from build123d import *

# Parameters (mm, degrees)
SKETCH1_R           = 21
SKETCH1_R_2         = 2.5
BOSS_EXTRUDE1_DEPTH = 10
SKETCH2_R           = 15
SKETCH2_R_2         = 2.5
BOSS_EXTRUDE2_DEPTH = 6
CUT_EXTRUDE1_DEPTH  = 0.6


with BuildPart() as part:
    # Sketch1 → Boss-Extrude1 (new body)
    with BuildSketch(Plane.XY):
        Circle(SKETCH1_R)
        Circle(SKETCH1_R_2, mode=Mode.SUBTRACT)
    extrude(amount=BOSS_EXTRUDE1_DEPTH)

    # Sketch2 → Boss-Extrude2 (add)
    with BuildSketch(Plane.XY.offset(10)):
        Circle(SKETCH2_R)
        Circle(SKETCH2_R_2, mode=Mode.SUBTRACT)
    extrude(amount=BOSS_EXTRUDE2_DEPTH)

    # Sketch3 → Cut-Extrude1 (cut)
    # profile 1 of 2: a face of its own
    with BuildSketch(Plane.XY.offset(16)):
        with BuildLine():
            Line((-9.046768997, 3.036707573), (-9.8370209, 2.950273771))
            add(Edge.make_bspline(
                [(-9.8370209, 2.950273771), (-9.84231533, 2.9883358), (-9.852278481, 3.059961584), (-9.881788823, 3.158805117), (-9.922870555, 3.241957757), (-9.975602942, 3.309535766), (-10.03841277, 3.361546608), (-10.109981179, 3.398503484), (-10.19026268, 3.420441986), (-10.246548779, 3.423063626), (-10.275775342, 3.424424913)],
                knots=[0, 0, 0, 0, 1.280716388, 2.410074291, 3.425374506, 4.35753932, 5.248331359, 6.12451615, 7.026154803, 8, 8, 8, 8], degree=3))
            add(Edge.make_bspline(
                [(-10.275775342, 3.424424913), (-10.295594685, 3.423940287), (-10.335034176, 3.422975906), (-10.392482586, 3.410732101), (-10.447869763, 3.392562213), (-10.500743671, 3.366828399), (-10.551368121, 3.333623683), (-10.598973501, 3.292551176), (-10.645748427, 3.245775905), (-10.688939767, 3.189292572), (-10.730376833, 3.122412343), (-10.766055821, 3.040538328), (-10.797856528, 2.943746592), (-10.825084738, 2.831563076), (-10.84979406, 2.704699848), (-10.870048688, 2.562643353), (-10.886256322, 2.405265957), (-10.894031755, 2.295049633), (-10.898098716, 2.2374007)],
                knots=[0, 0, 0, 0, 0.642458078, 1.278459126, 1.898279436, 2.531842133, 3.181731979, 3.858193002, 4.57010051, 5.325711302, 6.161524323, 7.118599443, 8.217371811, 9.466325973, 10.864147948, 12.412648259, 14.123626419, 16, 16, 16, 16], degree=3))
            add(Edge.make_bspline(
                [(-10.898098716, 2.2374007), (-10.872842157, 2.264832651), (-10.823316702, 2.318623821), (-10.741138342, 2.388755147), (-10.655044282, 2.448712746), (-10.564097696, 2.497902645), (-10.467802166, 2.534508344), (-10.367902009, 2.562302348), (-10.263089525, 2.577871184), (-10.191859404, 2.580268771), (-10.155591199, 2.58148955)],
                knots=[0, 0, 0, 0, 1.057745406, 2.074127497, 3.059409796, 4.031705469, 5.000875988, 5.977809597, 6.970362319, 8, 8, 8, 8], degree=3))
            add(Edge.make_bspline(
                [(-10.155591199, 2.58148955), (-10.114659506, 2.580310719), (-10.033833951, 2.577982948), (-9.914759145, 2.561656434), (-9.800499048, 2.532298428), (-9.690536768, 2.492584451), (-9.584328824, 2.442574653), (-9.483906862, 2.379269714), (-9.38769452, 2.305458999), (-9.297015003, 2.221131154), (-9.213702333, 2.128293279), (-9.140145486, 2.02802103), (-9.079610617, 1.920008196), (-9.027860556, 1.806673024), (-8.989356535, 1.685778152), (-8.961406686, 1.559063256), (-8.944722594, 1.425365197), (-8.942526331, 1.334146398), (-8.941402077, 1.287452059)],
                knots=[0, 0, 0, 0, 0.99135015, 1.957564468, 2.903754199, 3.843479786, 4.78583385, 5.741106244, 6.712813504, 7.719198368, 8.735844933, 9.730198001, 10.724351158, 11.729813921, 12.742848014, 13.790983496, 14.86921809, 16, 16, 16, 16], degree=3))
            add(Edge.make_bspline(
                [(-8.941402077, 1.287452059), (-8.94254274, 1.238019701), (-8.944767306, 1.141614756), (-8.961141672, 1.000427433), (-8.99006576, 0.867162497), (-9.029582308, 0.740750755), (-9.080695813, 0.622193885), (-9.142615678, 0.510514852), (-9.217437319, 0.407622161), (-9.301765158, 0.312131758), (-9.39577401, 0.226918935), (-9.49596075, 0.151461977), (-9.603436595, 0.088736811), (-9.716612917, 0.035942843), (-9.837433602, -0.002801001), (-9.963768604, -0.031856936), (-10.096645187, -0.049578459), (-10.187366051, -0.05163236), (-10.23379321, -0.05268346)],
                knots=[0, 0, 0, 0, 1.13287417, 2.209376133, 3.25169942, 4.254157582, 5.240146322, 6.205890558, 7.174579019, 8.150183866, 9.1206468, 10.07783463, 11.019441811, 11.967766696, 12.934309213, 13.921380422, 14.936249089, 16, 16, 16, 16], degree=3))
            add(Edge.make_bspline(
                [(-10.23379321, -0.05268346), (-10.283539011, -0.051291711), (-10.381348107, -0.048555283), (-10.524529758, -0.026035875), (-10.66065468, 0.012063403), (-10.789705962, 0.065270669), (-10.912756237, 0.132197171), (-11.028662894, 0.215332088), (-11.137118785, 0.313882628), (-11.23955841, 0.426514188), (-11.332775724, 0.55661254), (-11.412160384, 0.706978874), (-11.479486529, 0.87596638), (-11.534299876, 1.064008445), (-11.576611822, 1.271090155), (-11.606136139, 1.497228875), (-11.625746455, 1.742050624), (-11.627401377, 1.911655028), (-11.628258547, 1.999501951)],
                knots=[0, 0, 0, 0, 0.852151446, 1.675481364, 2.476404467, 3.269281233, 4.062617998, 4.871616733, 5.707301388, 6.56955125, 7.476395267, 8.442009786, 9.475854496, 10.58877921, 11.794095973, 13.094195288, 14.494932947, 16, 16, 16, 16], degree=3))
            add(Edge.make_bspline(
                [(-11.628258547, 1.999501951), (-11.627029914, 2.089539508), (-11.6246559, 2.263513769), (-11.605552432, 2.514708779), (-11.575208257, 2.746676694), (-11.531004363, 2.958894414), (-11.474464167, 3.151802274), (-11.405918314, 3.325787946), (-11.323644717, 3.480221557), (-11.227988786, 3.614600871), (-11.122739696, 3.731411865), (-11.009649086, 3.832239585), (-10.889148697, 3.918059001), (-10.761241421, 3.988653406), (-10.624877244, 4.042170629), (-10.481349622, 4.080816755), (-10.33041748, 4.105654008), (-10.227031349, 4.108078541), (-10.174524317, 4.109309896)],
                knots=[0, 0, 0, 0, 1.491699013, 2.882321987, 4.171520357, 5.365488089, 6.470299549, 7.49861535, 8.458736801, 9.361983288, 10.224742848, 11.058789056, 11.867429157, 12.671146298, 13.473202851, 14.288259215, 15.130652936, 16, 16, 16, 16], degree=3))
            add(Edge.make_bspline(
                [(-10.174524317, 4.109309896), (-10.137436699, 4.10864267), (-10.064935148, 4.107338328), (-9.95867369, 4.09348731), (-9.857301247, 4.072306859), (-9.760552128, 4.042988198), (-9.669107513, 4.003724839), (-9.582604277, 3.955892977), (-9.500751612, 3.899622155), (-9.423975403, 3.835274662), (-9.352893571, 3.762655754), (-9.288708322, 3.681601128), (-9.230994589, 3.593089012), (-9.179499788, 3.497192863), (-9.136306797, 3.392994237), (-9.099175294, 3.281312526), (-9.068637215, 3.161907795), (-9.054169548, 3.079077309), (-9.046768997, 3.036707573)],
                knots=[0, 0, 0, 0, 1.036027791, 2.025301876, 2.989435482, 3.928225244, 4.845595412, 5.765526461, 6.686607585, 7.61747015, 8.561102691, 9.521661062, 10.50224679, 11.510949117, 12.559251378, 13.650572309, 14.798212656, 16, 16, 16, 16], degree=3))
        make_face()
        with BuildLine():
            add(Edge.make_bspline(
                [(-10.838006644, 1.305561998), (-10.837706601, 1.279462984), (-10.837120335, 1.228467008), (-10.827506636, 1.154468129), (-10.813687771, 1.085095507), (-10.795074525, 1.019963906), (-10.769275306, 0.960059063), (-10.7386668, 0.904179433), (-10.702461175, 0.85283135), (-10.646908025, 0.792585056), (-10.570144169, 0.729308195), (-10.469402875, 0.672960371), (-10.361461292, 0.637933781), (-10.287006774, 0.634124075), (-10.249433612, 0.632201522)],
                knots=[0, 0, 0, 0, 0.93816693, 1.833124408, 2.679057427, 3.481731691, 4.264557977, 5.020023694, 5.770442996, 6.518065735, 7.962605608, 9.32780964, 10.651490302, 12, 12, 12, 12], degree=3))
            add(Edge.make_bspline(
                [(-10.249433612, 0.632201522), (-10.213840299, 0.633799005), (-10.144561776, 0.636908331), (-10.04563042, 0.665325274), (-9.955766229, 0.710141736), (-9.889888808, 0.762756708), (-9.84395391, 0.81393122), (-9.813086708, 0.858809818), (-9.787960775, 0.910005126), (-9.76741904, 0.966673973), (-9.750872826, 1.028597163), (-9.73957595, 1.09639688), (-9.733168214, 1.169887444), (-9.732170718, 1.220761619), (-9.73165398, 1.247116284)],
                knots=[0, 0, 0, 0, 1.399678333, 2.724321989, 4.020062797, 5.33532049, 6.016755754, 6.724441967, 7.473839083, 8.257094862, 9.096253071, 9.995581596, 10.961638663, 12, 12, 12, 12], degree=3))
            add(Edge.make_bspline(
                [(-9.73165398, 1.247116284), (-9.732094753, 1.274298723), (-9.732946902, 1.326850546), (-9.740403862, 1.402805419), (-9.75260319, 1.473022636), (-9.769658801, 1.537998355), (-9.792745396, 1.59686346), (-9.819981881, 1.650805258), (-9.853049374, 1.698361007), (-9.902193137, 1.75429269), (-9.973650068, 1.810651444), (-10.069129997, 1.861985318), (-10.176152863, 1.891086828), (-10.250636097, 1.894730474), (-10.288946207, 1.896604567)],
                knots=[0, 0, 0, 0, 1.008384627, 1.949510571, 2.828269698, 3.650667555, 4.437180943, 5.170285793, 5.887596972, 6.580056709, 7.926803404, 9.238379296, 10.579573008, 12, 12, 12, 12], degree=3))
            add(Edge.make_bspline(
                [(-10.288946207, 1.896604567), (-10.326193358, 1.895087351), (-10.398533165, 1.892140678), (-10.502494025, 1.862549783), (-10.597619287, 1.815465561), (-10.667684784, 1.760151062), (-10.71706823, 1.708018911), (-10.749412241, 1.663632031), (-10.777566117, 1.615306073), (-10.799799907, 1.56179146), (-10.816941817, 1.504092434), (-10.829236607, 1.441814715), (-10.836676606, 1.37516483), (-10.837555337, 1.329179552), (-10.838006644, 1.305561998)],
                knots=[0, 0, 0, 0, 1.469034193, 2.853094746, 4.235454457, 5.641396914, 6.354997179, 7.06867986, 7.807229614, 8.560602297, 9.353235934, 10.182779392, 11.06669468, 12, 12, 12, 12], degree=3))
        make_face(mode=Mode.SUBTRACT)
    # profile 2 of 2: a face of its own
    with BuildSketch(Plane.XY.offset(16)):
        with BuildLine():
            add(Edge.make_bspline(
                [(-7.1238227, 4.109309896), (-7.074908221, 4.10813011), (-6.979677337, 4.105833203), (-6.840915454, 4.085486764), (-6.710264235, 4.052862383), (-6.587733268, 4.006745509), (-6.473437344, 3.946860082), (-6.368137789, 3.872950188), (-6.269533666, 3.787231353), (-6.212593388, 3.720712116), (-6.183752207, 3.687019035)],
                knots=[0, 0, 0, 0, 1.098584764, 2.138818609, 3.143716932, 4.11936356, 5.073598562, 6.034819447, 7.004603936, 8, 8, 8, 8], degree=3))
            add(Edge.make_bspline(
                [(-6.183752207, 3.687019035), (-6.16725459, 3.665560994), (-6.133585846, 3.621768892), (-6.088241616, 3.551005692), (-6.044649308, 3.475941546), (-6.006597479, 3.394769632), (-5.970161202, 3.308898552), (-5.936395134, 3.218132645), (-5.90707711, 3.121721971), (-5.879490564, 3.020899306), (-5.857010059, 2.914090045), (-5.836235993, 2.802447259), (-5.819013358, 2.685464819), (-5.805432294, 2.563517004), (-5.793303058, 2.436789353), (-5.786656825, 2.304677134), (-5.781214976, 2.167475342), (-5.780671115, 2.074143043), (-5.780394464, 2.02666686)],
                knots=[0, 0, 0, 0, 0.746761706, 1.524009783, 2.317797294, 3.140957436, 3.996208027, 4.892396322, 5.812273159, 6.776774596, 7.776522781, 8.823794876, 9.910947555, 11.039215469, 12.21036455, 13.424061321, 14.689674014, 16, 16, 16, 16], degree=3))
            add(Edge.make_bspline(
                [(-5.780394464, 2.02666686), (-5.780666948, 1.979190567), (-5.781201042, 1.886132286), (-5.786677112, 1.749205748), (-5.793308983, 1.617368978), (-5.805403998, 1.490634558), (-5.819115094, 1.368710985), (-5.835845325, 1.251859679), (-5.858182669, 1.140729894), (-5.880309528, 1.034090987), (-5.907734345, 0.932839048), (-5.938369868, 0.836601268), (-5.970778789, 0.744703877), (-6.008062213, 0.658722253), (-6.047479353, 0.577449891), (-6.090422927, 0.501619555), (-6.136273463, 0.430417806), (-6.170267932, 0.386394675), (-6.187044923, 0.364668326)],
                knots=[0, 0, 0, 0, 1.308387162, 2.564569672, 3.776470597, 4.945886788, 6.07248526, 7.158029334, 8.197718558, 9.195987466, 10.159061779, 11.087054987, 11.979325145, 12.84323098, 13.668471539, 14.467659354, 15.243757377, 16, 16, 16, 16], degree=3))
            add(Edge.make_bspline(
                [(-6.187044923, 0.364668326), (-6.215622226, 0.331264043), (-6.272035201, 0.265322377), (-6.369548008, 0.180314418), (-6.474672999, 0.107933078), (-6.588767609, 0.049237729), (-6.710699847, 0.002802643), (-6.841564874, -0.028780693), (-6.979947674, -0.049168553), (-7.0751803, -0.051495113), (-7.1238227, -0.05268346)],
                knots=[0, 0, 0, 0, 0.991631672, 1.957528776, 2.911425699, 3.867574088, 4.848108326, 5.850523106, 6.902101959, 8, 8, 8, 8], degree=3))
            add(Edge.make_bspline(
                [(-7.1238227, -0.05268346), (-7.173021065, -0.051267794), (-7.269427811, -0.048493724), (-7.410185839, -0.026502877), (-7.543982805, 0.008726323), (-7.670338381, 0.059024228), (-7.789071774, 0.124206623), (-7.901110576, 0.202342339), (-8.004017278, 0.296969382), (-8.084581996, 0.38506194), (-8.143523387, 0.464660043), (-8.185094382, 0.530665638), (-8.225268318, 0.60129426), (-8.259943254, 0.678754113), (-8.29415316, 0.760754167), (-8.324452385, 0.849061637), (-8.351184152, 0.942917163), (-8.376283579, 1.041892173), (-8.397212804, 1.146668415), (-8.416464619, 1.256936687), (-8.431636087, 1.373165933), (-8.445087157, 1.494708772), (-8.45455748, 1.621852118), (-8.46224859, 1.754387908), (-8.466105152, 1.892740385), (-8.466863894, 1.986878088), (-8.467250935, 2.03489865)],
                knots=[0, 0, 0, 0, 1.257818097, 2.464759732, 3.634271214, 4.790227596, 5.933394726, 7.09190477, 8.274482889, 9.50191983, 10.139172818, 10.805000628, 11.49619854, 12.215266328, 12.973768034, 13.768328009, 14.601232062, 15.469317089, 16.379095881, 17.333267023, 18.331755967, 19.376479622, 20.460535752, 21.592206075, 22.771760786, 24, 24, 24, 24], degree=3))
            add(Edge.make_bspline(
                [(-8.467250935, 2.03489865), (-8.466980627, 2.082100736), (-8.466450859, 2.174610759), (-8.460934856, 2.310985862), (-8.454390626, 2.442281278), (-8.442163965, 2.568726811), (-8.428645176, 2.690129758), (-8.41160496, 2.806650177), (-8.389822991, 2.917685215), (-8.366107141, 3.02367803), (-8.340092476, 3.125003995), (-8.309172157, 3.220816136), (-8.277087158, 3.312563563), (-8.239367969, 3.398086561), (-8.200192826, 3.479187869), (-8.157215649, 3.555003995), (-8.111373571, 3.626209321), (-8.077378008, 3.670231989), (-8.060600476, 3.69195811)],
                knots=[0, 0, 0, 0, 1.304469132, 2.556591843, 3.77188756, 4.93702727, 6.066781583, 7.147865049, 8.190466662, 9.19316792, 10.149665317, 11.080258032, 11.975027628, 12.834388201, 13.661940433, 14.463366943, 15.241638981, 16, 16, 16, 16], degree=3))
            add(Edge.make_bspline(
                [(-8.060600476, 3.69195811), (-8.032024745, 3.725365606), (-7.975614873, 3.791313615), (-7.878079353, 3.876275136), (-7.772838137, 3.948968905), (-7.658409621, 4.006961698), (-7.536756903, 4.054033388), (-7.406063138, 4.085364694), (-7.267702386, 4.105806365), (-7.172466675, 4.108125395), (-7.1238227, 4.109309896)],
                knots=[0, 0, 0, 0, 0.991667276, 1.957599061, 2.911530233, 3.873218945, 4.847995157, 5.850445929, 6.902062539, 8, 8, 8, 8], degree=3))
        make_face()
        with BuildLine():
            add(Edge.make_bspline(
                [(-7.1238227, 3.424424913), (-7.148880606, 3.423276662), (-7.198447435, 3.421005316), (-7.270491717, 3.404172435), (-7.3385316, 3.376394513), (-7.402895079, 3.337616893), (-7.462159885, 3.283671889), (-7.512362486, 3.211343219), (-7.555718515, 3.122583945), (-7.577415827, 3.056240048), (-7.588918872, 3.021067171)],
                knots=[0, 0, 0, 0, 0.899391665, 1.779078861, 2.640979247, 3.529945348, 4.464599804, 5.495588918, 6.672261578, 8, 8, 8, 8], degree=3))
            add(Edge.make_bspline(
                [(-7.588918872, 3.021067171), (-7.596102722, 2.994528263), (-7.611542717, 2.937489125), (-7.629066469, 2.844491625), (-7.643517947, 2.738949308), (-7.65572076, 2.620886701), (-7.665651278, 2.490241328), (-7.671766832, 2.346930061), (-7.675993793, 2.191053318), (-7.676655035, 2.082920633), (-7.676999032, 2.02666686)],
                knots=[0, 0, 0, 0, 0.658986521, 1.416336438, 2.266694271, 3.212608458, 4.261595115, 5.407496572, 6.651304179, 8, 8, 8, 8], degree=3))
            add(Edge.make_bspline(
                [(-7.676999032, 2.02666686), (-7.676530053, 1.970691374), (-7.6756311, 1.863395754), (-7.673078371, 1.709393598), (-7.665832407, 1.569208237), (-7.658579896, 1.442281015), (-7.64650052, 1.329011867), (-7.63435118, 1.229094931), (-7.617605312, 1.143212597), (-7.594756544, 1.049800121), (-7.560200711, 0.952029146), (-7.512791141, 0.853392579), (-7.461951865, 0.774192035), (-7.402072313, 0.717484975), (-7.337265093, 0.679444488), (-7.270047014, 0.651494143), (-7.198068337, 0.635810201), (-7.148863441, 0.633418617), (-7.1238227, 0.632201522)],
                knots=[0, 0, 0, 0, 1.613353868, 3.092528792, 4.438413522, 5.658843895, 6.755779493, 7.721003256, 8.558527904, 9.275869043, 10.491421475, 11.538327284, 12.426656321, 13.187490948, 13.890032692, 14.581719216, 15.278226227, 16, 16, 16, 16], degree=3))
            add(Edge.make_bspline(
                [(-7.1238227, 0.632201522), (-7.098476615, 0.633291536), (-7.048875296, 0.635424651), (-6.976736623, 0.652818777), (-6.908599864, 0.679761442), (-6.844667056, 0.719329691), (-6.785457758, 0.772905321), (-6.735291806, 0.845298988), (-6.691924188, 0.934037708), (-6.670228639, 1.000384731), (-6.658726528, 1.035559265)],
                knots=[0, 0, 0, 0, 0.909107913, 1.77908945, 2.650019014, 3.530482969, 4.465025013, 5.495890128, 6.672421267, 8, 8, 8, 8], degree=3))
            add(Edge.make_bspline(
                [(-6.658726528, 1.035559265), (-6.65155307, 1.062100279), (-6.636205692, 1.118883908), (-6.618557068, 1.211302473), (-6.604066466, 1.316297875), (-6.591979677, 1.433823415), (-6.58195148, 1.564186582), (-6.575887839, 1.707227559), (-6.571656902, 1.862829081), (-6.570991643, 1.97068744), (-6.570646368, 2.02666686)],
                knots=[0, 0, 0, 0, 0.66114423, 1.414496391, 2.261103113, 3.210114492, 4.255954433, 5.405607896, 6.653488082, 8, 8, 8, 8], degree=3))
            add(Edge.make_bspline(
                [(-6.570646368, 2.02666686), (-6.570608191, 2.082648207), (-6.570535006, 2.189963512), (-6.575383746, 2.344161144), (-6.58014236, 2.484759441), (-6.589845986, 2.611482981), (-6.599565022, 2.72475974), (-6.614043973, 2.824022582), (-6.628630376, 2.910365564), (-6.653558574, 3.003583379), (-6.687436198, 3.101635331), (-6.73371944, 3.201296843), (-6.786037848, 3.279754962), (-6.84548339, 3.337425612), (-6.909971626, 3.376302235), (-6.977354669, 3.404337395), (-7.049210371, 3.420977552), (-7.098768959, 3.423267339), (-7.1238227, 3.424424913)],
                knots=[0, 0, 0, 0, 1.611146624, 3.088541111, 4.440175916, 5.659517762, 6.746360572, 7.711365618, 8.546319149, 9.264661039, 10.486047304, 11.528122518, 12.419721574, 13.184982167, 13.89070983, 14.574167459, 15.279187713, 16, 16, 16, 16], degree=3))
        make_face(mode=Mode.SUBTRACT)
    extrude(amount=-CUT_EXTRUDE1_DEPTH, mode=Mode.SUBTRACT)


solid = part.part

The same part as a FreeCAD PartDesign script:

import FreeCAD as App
import Part
import Sketcher
from FreeCAD import Vector
Q = App.Units.Quantity

doc = App.newDocument("Part")
params = doc.addObject("Spreadsheet::Sheet", "Params")
for row, (alias, value) in enumerate([
    ("sketch1_diameter", "42 mm"),
    ("sketch1_diameter2", "5 mm"),
    ("pad1_length", "10 mm"),
    ("sketch2_diameter", "30 mm"),
    ("sketch2_diameter2", "5 mm"),
    ("pad2_length", "6 mm"),
    ("pocket1_length", "0.6 mm"),
], start=1):
    params.set(f"A{row}", alias)
    params.set(f"B{row}", "=" + value)
    params.setAlias(f"B{row}", alias)

body = doc.addObject("PartDesign::Body", "Body")

# Sketch on XY plane
sketch1 = body.newObject("Sketcher::SketchObject", "Sketch")
sketch1.AttachmentSupport = (doc.getObject("XY_Plane"), [""])
sketch1.MapMode = "FlatFace"
sketch1.addGeometry([
    Part.Circle(Vector(0, 0, 0), Vector(0, 0, 1), 21),
    Part.Circle(Vector(0, 0, 0), Vector(0, 0, 1), 2.5),
], False)
sketch1.addConstraint([
    Sketcher.Constraint("Coincident", 0, 3, -1, 1),
    Sketcher.Constraint("Coincident", 1, 3, -1, 1),
    Sketcher.Constraint("Diameter", 0, Q("42 mm")),
    Sketcher.Constraint("Diameter", 1, Q("5 mm")),
])
sketch1.setExpression("Constraints[2]", "Params.sketch1_diameter")
sketch1.setExpression("Constraints[3]", "Params.sketch1_diameter2")
pad1 = body.newObject("PartDesign::Pad", "Pad")
pad1.Profile = sketch1
pad1.setExpression("Length", "Params.pad1_length")

# Sketch on XY plane
sketch2 = body.newObject("Sketcher::SketchObject", "Sketch001")
sketch2.AttachmentSupport = (doc.getObject("XY_Plane"), [""])
sketch2.MapMode = "FlatFace"
sketch2.AttachmentOffset = App.Placement(Vector(0, 0, 10), App.Rotation())
sketch2.addGeometry([
    Part.Circle(Vector(0, 0, 0), Vector(0, 0, 1), 15),
    Part.Circle(Vector(0, 0, 0), Vector(0, 0, 1), 2.5),
], False)
sketch2.addConstraint([
    Sketcher.Constraint("Coincident", 0, 3, -1, 1),
    Sketcher.Constraint("Coincident", 1, 3, -1, 1),
    Sketcher.Constraint("Diameter", 0, Q("30 mm")),
    Sketcher.Constraint("Diameter", 1, Q("5 mm")),
])
sketch2.setExpression("Constraints[2]", "Params.sketch2_diameter")
sketch2.setExpression("Constraints[3]", "Params.sketch2_diameter2")
pad2 = body.newObject("PartDesign::Pad", "Pad001")
pad2.Profile = sketch2
pad2.setExpression("Length", "Params.pad2_length")

# Sketch on XY plane
sketch3 = body.newObject("Sketcher::SketchObject", "Sketch002")
sketch3.AttachmentSupport = (doc.getObject("XY_Plane"), [""])
sketch3.MapMode = "FlatFace"
sketch3.AttachmentOffset = App.Placement(Vector(0, 0, 16), App.Rotation())
sketch3.addGeometry([
    Part.LineSegment(Vector(-9.837021, 2.950274, 0), Vector(-9.046769, 3.036708, 0)),  # 0
    Part.BSplineCurve([Vector(-10.174524, 4.10931, 0), Vector(-10.137437, 4.108643, 0), Vector(-10.064935, 4.107338, 0), Vector(-9.958674, 4.093487, 0), Vector(-9.857301, 4.072307, 0), Vector(-9.760552, 4.042988, 0), Vector(-9.669108, 4.003725, 0), Vector(-9.582604, 3.955893, 0), Vector(-9.500752, 3.899622, 0), Vector(-9.423975, 3.835275, 0), Vector(-9.352894, 3.762656, 0), Vector(-9.288708, 3.681601, 0), Vector(-9.230995, 3.593089, 0), Vector(-9.1795, 3.497193, 0), Vector(-9.136307, 3.392994, 0), Vector(-9.099175, 3.281313, 0), Vector(-9.068637, 3.161908, 0), Vector(-9.05417, 3.079077, 0), Vector(-9.046769, 3.036708, 0)], [4, 1, 1, 1, 1, 1, 1, 1, 1, 1, 1, 1, 1, 1, 1, 1, 4], [0, 1.036027791, 2.025301876, 2.989435482, 3.928225244, 4.845595412, 5.765526461, 6.686607585, 7.61747015, 8.561102691, 9.521661062, 10.50224679, 11.510949117, 12.559251378, 13.650572309, 14.798212656, 16], False, 3, [1, 1, 1, 1, 1, 1, 1, 1, 1, 1, 1, 1, 1, 1, 1, 1, 1, 1, 1], False),  # 1
    Part.BSplineCurve([Vector(-11.628259, 1.999502, 0), Vector(-11.62703, 2.08954, 0), Vector(-11.624656, 2.263514, 0), Vector(-11.605552, 2.514709, 0), Vector(-11.575208, 2.746677, 0), Vector(-11.531004, 2.958894, 0), Vector(-11.474464, 3.151802, 0), Vector(-11.405918, 3.325788, 0), Vector(-11.323645, 3.480222, 0), Vector(-11.227989, 3.614601, 0), Vector(-11.12274, 3.731412, 0), Vector(-11.009649, 3.83224, 0), Vector(-10.889149, 3.918059, 0), Vector(-10.761241, 3.988653, 0), Vector(-10.624877, 4.042171, 0), Vector(-10.48135, 4.080817, 0), Vector(-10.330417, 4.105654, 0), Vector(-10.227031, 4.108079, 0), Vector(-10.174524, 4.10931, 0)], [4, 1, 1, 1, 1, 1, 1, 1, 1, 1, 1, 1, 1, 1, 1, 1, 4], [0, 1.491699013, 2.882321987, 4.171520357, 5.365488089, 6.470299549, 7.49861535, 8.458736801, 9.361983288, 10.224742848, 11.058789056, 11.867429157, 12.671146298, 13.473202851, 14.288259215, 15.130652936, 16], False, 3, [1, 1, 1, 1, 1, 1, 1, 1, 1, 1, 1, 1, 1, 1, 1, 1, 1, 1, 1], False),  # 2
    Part.BSplineCurve([Vector(-10.233793, -0.052683, 0), Vector(-10.283539, -0.051292, 0), Vector(-10.381348, -0.048555, 0), Vector(-10.52453, -0.026036, 0), Vector(-10.660655, 0.012063, 0), Vector(-10.789706, 0.065271, 0), Vector(-10.912756, 0.132197, 0), Vector(-11.028663, 0.215332, 0), Vector(-11.137119, 0.313883, 0), Vector(-11.239558, 0.426514, 0), Vector(-11.332776, 0.556613, 0), Vector(-11.41216, 0.706979, 0), Vector(-11.479487, 0.875966, 0), Vector(-11.5343, 1.064008, 0), Vector(-11.576612, 1.27109, 0), Vector(-11.606136, 1.497229, 0), Vector(-11.625746, 1.742051, 0), Vector(-11.627401, 1.911655, 0), Vector(-11.628259, 1.999502, 0)], [4, 1, 1, 1, 1, 1, 1, 1, 1, 1, 1, 1, 1, 1, 1, 1, 4], [0, 0.852151446, 1.675481364, 2.476404467, 3.269281233, 4.062617998, 4.871616733, 5.707301388, 6.56955125, 7.476395267, 8.442009786, 9.475854496, 10.58877921, 11.794095973, 13.094195288, 14.494932947, 16], False, 3, [1, 1, 1, 1, 1, 1, 1, 1, 1, 1, 1, 1, 1, 1, 1, 1, 1, 1, 1], False),  # 3
    Part.BSplineCurve([Vector(-8.941402, 1.287452, 0), Vector(-8.942543, 1.23802, 0), Vector(-8.944767, 1.141615, 0), Vector(-8.961142, 1.000427, 0), Vector(-8.990066, 0.867162, 0), Vector(-9.029582, 0.740751, 0), Vector(-9.080696, 0.622194, 0), Vector(-9.142616, 0.510515, 0), Vector(-9.217437, 0.407622, 0), Vector(-9.301765, 0.312132, 0), Vector(-9.395774, 0.226919, 0), Vector(-9.495961, 0.151462, 0), Vector(-9.603437, 0.088737, 0), Vector(-9.716613, 0.035943, 0), Vector(-9.837434, -0.002801, 0), Vector(-9.963769, -0.031857, 0), Vector(-10.096645, -0.049578, 0), Vector(-10.187366, -0.051632, 0), Vector(-10.233793, -0.052683, 0)], [4, 1, 1, 1, 1, 1, 1, 1, 1, 1, 1, 1, 1, 1, 1, 1, 4], [0, 1.13287417, 2.209376133, 3.25169942, 4.254157582, 5.240146322, 6.205890558, 7.174579019, 8.150183866, 9.1206468, 10.07783463, 11.019441811, 11.967766696, 12.934309213, 13.921380422, 14.936249089, 16], False, 3, [1, 1, 1, 1, 1, 1, 1, 1, 1, 1, 1, 1, 1, 1, 1, 1, 1, 1, 1], False),  # 4
    Part.BSplineCurve([Vector(-10.155591, 2.58149, 0), Vector(-10.11466, 2.580311, 0), Vector(-10.033834, 2.577983, 0), Vector(-9.914759, 2.561656, 0), Vector(-9.800499, 2.532298, 0), Vector(-9.690537, 2.492584, 0), Vector(-9.584329, 2.442575, 0), Vector(-9.483907, 2.37927, 0), Vector(-9.387695, 2.305459, 0), Vector(-9.297015, 2.221131, 0), Vector(-9.213702, 2.128293, 0), Vector(-9.140145, 2.028021, 0), Vector(-9.079611, 1.920008, 0), Vector(-9.027861, 1.806673, 0), Vector(-8.989357, 1.685778, 0), Vector(-8.961407, 1.559063, 0), Vector(-8.944723, 1.425365, 0), Vector(-8.942526, 1.334146, 0), Vector(-8.941402, 1.287452, 0)], [4, 1, 1, 1, 1, 1, 1, 1, 1, 1, 1, 1, 1, 1, 1, 1, 4], [0, 0.99135015, 1.957564468, 2.903754199, 3.843479786, 4.78583385, 5.741106244, 6.712813504, 7.719198368, 8.735844933, 9.730198001, 10.724351158, 11.729813921, 12.742848014, 13.790983496, 14.86921809, 16], False, 3, [1, 1, 1, 1, 1, 1, 1, 1, 1, 1, 1, 1, 1, 1, 1, 1, 1, 1, 1], False),  # 5
    Part.BSplineCurve([Vector(-10.898099, 2.237401, 0), Vector(-10.872842, 2.264833, 0), Vector(-10.823317, 2.318624, 0), Vector(-10.741138, 2.388755, 0), Vector(-10.655044, 2.448713, 0), Vector(-10.564098, 2.497903, 0), Vector(-10.467802, 2.534508, 0), Vector(-10.367902, 2.562302, 0), Vector(-10.26309, 2.577871, 0), Vector(-10.191859, 2.580269, 0), Vector(-10.155591, 2.58149, 0)], [4, 1, 1, 1, 1, 1, 1, 1, 4], [0, 1.057745406, 2.074127497, 3.059409796, 4.031705469, 5.000875988, 5.977809597, 6.970362319, 8], False, 3, [1, 1, 1, 1, 1, 1, 1, 1, 1, 1, 1], False),  # 6
    Part.BSplineCurve([Vector(-10.275775, 3.424425, 0), Vector(-10.295595, 3.42394, 0), Vector(-10.335034, 3.422976, 0), Vector(-10.392483, 3.410732, 0), Vector(-10.44787, 3.392562, 0), Vector(-10.500744, 3.366828, 0), Vector(-10.551368, 3.333624, 0), Vector(-10.598974, 3.292551, 0), Vector(-10.645748, 3.245776, 0), Vector(-10.68894, 3.189293, 0), Vector(-10.730377, 3.122412, 0), Vector(-10.766056, 3.040538, 0), Vector(-10.797857, 2.943747, 0), Vector(-10.825085, 2.831563, 0), Vector(-10.849794, 2.7047, 0), Vector(-10.870049, 2.562643, 0), Vector(-10.886256, 2.405266, 0), Vector(-10.894032, 2.29505, 0), Vector(-10.898099, 2.237401, 0)], [4, 1, 1, 1, 1, 1, 1, 1, 1, 1, 1, 1, 1, 1, 1, 1, 4], [0, 0.642458078, 1.278459126, 1.898279436, 2.531842133, 3.181731979, 3.858193002, 4.57010051, 5.325711302, 6.161524323, 7.118599443, 8.217371811, 9.466325973, 10.864147948, 12.412648259, 14.123626419, 16], False, 3, [1, 1, 1, 1, 1, 1, 1, 1, 1, 1, 1, 1, 1, 1, 1, 1, 1, 1, 1], False),  # 7
    Part.BSplineCurve([Vector(-9.837021, 2.950274, 0), Vector(-9.842315, 2.988336, 0), Vector(-9.852278, 3.059962, 0), Vector(-9.881789, 3.158805, 0), Vector(-9.922871, 3.241958, 0), Vector(-9.975603, 3.309536, 0), Vector(-10.038413, 3.361547, 0), Vector(-10.109981, 3.398503, 0), Vector(-10.190263, 3.420442, 0), Vector(-10.246549, 3.423064, 0), Vector(-10.275775, 3.424425, 0)], [4, 1, 1, 1, 1, 1, 1, 1, 4], [0, 1.280716388, 2.410074291, 3.425374506, 4.35753932, 5.248331359, 6.12451615, 7.026154803, 8], False, 3, [1, 1, 1, 1, 1, 1, 1, 1, 1, 1, 1], False),  # 8
    Part.BSplineCurve([Vector(-10.288946, 1.896605, 0), Vector(-10.326193, 1.895087, 0), Vector(-10.398533, 1.892141, 0), Vector(-10.502494, 1.86255, 0), Vector(-10.597619, 1.815466, 0), Vector(-10.667685, 1.760151, 0), Vector(-10.717068, 1.708019, 0), Vector(-10.749412, 1.663632, 0), Vector(-10.777566, 1.615306, 0), Vector(-10.7998, 1.561791, 0), Vector(-10.816942, 1.504092, 0), Vector(-10.829237, 1.441815, 0), Vector(-10.836677, 1.375165, 0), Vector(-10.837555, 1.32918, 0), Vector(-10.838007, 1.305562, 0)], [4, 1, 1, 1, 1, 1, 1, 1, 1, 1, 1, 1, 4], [0, 1.469034193, 2.853094746, 4.235454457, 5.641396914, 6.354997179, 7.06867986, 7.807229614, 8.560602297, 9.353235934, 10.182779392, 11.06669468, 12], False, 3, [1, 1, 1, 1, 1, 1, 1, 1, 1, 1, 1, 1, 1, 1, 1], False),  # 9
    Part.BSplineCurve([Vector(-9.731654, 1.247116, 0), Vector(-9.732095, 1.274299, 0), Vector(-9.732947, 1.326851, 0), Vector(-9.740404, 1.402805, 0), Vector(-9.752603, 1.473023, 0), Vector(-9.769659, 1.537998, 0), Vector(-9.792745, 1.596863, 0), Vector(-9.819982, 1.650805, 0), Vector(-9.853049, 1.698361, 0), Vector(-9.902193, 1.754293, 0), Vector(-9.97365, 1.810651, 0), Vector(-10.06913, 1.861985, 0), Vector(-10.176153, 1.891087, 0), Vector(-10.250636, 1.89473, 0), Vector(-10.288946, 1.896605, 0)], [4, 1, 1, 1, 1, 1, 1, 1, 1, 1, 1, 1, 4], [0, 1.008384627, 1.949510571, 2.828269698, 3.650667555, 4.437180943, 5.170285793, 5.887596972, 6.580056709, 7.926803404, 9.238379296, 10.579573008, 12], False, 3, [1, 1, 1, 1, 1, 1, 1, 1, 1, 1, 1, 1, 1, 1, 1], False),  # 10
    Part.BSplineCurve([Vector(-10.249434, 0.632202, 0), Vector(-10.21384, 0.633799, 0), Vector(-10.144562, 0.636908, 0), Vector(-10.04563, 0.665325, 0), Vector(-9.955766, 0.710142, 0), Vector(-9.889889, 0.762757, 0), Vector(-9.843954, 0.813931, 0), Vector(-9.813087, 0.85881, 0), Vector(-9.787961, 0.910005, 0), Vector(-9.767419, 0.966674, 0), Vector(-9.750873, 1.028597, 0), Vector(-9.739576, 1.096397, 0), Vector(-9.733168, 1.169887, 0), Vector(-9.732171, 1.220762, 0), Vector(-9.731654, 1.247116, 0)], [4, 1, 1, 1, 1, 1, 1, 1, 1, 1, 1, 1, 4], [0, 1.399678333, 2.724321989, 4.020062797, 5.33532049, 6.016755754, 6.724441967, 7.473839083, 8.257094862, 9.096253071, 9.995581596, 10.961638663, 12], False, 3, [1, 1, 1, 1, 1, 1, 1, 1, 1, 1, 1, 1, 1, 1, 1], False),  # 11
    Part.BSplineCurve([Vector(-10.838007, 1.305562, 0), Vector(-10.837707, 1.279463, 0), Vector(-10.83712, 1.228467, 0), Vector(-10.827507, 1.154468, 0), Vector(-10.813688, 1.085096, 0), Vector(-10.795075, 1.019964, 0), Vector(-10.769275, 0.960059, 0), Vector(-10.738667, 0.904179, 0), Vector(-10.702461, 0.852831, 0), Vector(-10.646908, 0.792585, 0), Vector(-10.570144, 0.729308, 0), Vector(-10.469403, 0.67296, 0), Vector(-10.361461, 0.637934, 0), Vector(-10.287007, 0.634124, 0), Vector(-10.249434, 0.632202, 0)], [4, 1, 1, 1, 1, 1, 1, 1, 1, 1, 1, 1, 4], [0, 0.93816693, 1.833124408, 2.679057427, 3.481731691, 4.264557977, 5.020023694, 5.770442996, 6.518065735, 7.962605608, 9.32780964, 10.651490302, 12], False, 3, [1, 1, 1, 1, 1, 1, 1, 1, 1, 1, 1, 1, 1, 1, 1], False),  # 12
    Part.BSplineCurve([Vector(-7.123823, 4.10931, 0), Vector(-7.074908, 4.10813, 0), Vector(-6.979677, 4.105833, 0), Vector(-6.840915, 4.085487, 0), Vector(-6.710264, 4.052862, 0), Vector(-6.587733, 4.006746, 0), Vector(-6.473437, 3.94686, 0), Vector(-6.368138, 3.87295, 0), Vector(-6.269534, 3.787231, 0), Vector(-6.212593, 3.720712, 0), Vector(-6.183752, 3.687019, 0)], [4, 1, 1, 1, 1, 1, 1, 1, 4], [0, 1.098584764, 2.138818609, 3.143716932, 4.11936356, 5.073598562, 6.034819447, 7.004603936, 8], False, 3, [1, 1, 1, 1, 1, 1, 1, 1, 1, 1, 1], False),  # 13
    Part.BSplineCurve([Vector(-8.0606, 3.691958, 0), Vector(-8.032025, 3.725366, 0), Vector(-7.975615, 3.791314, 0), Vector(-7.878079, 3.876275, 0), Vector(-7.772838, 3.948969, 0), Vector(-7.65841, 4.006962, 0), Vector(-7.536757, 4.054033, 0), Vector(-7.406063, 4.085365, 0), Vector(-7.267702, 4.105806, 0), Vector(-7.172467, 4.108125, 0), Vector(-7.123823, 4.10931, 0)], [4, 1, 1, 1, 1, 1, 1, 1, 4], [0, 0.991667276, 1.957599061, 2.911530233, 3.873218945, 4.847995157, 5.850445929, 6.902062539, 8], False, 3, [1, 1, 1, 1, 1, 1, 1, 1, 1, 1, 1], False),  # 14
    Part.BSplineCurve([Vector(-8.467251, 2.034899, 0), Vector(-8.466981, 2.082101, 0), Vector(-8.466451, 2.174611, 0), Vector(-8.460935, 2.310986, 0), Vector(-8.454391, 2.442281, 0), Vector(-8.442164, 2.568727, 0), Vector(-8.428645, 2.69013, 0), Vector(-8.411605, 2.80665, 0), Vector(-8.389823, 2.917685, 0), Vector(-8.366107, 3.023678, 0), Vector(-8.340092, 3.125004, 0), Vector(-8.309172, 3.220816, 0), Vector(-8.277087, 3.312564, 0), Vector(-8.239368, 3.398087, 0), Vector(-8.200193, 3.479188, 0), Vector(-8.157216, 3.555004, 0), Vector(-8.111374, 3.626209, 0), Vector(-8.077378, 3.670232, 0), Vector(-8.0606, 3.691958, 0)], [4, 1, 1, 1, 1, 1, 1, 1, 1, 1, 1, 1, 1, 1, 1, 1, 4], [0, 1.304469132, 2.556591843, 3.77188756, 4.93702727, 6.066781583, 7.147865049, 8.190466662, 9.19316792, 10.149665317, 11.080258032, 11.975027628, 12.834388201, 13.661940433, 14.463366943, 15.241638981, 16], False, 3, [1, 1, 1, 1, 1, 1, 1, 1, 1, 1, 1, 1, 1, 1, 1, 1, 1, 1, 1], False),  # 15
    Part.BSplineCurve([Vector(-7.123823, -0.052683, 0), Vector(-7.173021, -0.051268, 0), Vector(-7.269428, -0.048494, 0), Vector(-7.410186, -0.026503, 0), Vector(-7.543983, 0.008726, 0), Vector(-7.670338, 0.059024, 0), Vector(-7.789072, 0.124207, 0), Vector(-7.901111, 0.202342, 0), Vector(-8.004017, 0.296969, 0), Vector(-8.084582, 0.385062, 0), Vector(-8.143523, 0.46466, 0), Vector(-8.185094, 0.530666, 0), Vector(-8.225268, 0.601294, 0), Vector(-8.259943, 0.678754, 0), Vector(-8.294153, 0.760754, 0), Vector(-8.324452, 0.849062, 0), Vector(-8.351184, 0.942917, 0), Vector(-8.376284, 1.041892, 0), Vector(-8.397213, 1.146668, 0), Vector(-8.416465, 1.256937, 0), Vector(-8.431636, 1.373166, 0), Vector(-8.445087, 1.494709, 0), Vector(-8.454557, 1.621852, 0), Vector(-8.462249, 1.754388, 0), Vector(-8.466105, 1.89274, 0), Vector(-8.466864, 1.986878, 0), Vector(-8.467251, 2.034899, 0)], [4, 1, 1, 1, 1, 1, 1, 1, 1, 1, 1, 1, 1, 1, 1, 1, 1, 1, 1, 1, 1, 1, 1, 1, 4], [0, 1.257818097, 2.464759732, 3.634271214, 4.790227596, 5.933394726, 7.09190477, 8.274482889, 9.50191983, 10.139172818, 10.805000628, 11.49619854, 12.215266328, 12.973768034, 13.768328009, 14.601232062, 15.469317089, 16.379095881, 17.333267023, 18.331755967, 19.376479622, 20.460535752, 21.592206075, 22.771760786, 24], False, 3, [1, 1, 1, 1, 1, 1, 1, 1, 1, 1, 1, 1, 1, 1, 1, 1, 1, 1, 1, 1, 1, 1, 1, 1, 1, 1, 1], False),  # 16
    Part.BSplineCurve([Vector(-6.187045, 0.364668, 0), Vector(-6.215622, 0.331264, 0), Vector(-6.272035, 0.265322, 0), Vector(-6.369548, 0.180314, 0), Vector(-6.474673, 0.107933, 0), Vector(-6.588768, 0.049238, 0), Vector(-6.7107, 0.002803, 0), Vector(-6.841565, -0.028781, 0), Vector(-6.979948, -0.049169, 0), Vector(-7.07518, -0.051495, 0), Vector(-7.123823, -0.052683, 0)], [4, 1, 1, 1, 1, 1, 1, 1, 4], [0, 0.991631672, 1.957528776, 2.911425699, 3.867574088, 4.848108326, 5.850523106, 6.902101959, 8], False, 3, [1, 1, 1, 1, 1, 1, 1, 1, 1, 1, 1], False),  # 17
    Part.BSplineCurve([Vector(-5.780394, 2.026667, 0), Vector(-5.780667, 1.979191, 0), Vector(-5.781201, 1.886132, 0), Vector(-5.786677, 1.749206, 0), Vector(-5.793309, 1.617369, 0), Vector(-5.805404, 1.490635, 0), Vector(-5.819115, 1.368711, 0), Vector(-5.835845, 1.25186, 0), Vector(-5.858183, 1.14073, 0), Vector(-5.88031, 1.034091, 0), Vector(-5.907734, 0.932839, 0), Vector(-5.93837, 0.836601, 0), Vector(-5.970779, 0.744704, 0), Vector(-6.008062, 0.658722, 0), Vector(-6.047479, 0.57745, 0), Vector(-6.090423, 0.50162, 0), Vector(-6.136273, 0.430418, 0), Vector(-6.170268, 0.386395, 0), Vector(-6.187045, 0.364668, 0)], [4, 1, 1, 1, 1, 1, 1, 1, 1, 1, 1, 1, 1, 1, 1, 1, 4], [0, 1.308387162, 2.564569672, 3.776470597, 4.945886788, 6.07248526, 7.158029334, 8.197718558, 9.195987466, 10.159061779, 11.087054987, 11.979325145, 12.84323098, 13.668471539, 14.467659354, 15.243757377, 16], False, 3, [1, 1, 1, 1, 1, 1, 1, 1, 1, 1, 1, 1, 1, 1, 1, 1, 1, 1, 1], False),  # 18
    Part.BSplineCurve([Vector(-6.183752, 3.687019, 0), Vector(-6.167255, 3.665561, 0), Vector(-6.133586, 3.621769, 0), Vector(-6.088242, 3.551006, 0), Vector(-6.044649, 3.475942, 0), Vector(-6.006597, 3.39477, 0), Vector(-5.970161, 3.308899, 0), Vector(-5.936395, 3.218133, 0), Vector(-5.907077, 3.121722, 0), Vector(-5.879491, 3.020899, 0), Vector(-5.85701, 2.91409, 0), Vector(-5.836236, 2.802447, 0), Vector(-5.819013, 2.685465, 0), Vector(-5.805432, 2.563517, 0), Vector(-5.793303, 2.436789, 0), Vector(-5.786657, 2.304677, 0), Vector(-5.781215, 2.167475, 0), Vector(-5.780671, 2.074143, 0), Vector(-5.780394, 2.026667, 0)], [4, 1, 1, 1, 1, 1, 1, 1, 1, 1, 1, 1, 1, 1, 1, 1, 4], [0, 0.746761706, 1.524009783, 2.317797294, 3.140957436, 3.996208027, 4.892396322, 5.812273159, 6.776774596, 7.776522781, 8.823794876, 9.910947555, 11.039215469, 12.21036455, 13.424061321, 14.689674014, 16], False, 3, [1, 1, 1, 1, 1, 1, 1, 1, 1, 1, 1, 1, 1, 1, 1, 1, 1, 1, 1], False),  # 19
    Part.BSplineCurve([Vector(-6.570646, 2.026667, 0), Vector(-6.570608, 2.082648, 0), Vector(-6.570535, 2.189964, 0), Vector(-6.575384, 2.344161, 0), Vector(-6.580142, 2.484759, 0), Vector(-6.589846, 2.611483, 0), Vector(-6.599565, 2.72476, 0), Vector(-6.614044, 2.824023, 0), Vector(-6.62863, 2.910366, 0), Vector(-6.653559, 3.003583, 0), Vector(-6.687436, 3.101635, 0), Vector(-6.733719, 3.201297, 0), Vector(-6.786038, 3.279755, 0), Vector(-6.845483, 3.337426, 0), Vector(-6.909972, 3.376302, 0), Vector(-6.977355, 3.404337, 0), Vector(-7.04921, 3.420978, 0), Vector(-7.098769, 3.423267, 0), Vector(-7.123823, 3.424425, 0)], [4, 1, 1, 1, 1, 1, 1, 1, 1, 1, 1, 1, 1, 1, 1, 1, 4], [0, 1.611146624, 3.088541111, 4.440175916, 5.659517762, 6.746360572, 7.711365618, 8.546319149, 9.264661039, 10.486047304, 11.528122518, 12.419721574, 13.184982167, 13.89070983, 14.574167459, 15.279187713, 16], False, 3, [1, 1, 1, 1, 1, 1, 1, 1, 1, 1, 1, 1, 1, 1, 1, 1, 1, 1, 1], False),  # 20
    Part.BSplineCurve([Vector(-6.658727, 1.035559, 0), Vector(-6.651553, 1.0621, 0), Vector(-6.636206, 1.118884, 0), Vector(-6.618557, 1.211302, 0), Vector(-6.604066, 1.316298, 0), Vector(-6.59198, 1.433823, 0), Vector(-6.581951, 1.564187, 0), Vector(-6.575888, 1.707228, 0), Vector(-6.571657, 1.862829, 0), Vector(-6.570992, 1.970687, 0), Vector(-6.570646, 2.026667, 0)], [4, 1, 1, 1, 1, 1, 1, 1, 4], [0, 0.66114423, 1.414496391, 2.261103113, 3.210114492, 4.255954433, 5.405607896, 6.653488082, 8], False, 3, [1, 1, 1, 1, 1, 1, 1, 1, 1, 1, 1], False),  # 21
    Part.BSplineCurve([Vector(-7.123823, 0.632202, 0), Vector(-7.098477, 0.633292, 0), Vector(-7.048875, 0.635425, 0), Vector(-6.976737, 0.652819, 0), Vector(-6.9086, 0.679761, 0), Vector(-6.844667, 0.71933, 0), Vector(-6.785458, 0.772905, 0), Vector(-6.735292, 0.845299, 0), Vector(-6.691924, 0.934038, 0), Vector(-6.670229, 1.000385, 0), Vector(-6.658727, 1.035559, 0)], [4, 1, 1, 1, 1, 1, 1, 1, 4], [0, 0.909107913, 1.77908945, 2.650019014, 3.530482969, 4.465025013, 5.495890128, 6.672421267, 8], False, 3, [1, 1, 1, 1, 1, 1, 1, 1, 1, 1, 1], False),  # 22
    Part.BSplineCurve([Vector(-7.676999, 2.026667, 0), Vector(-7.67653, 1.970691, 0), Vector(-7.675631, 1.863396, 0), Vector(-7.673078, 1.709394, 0), Vector(-7.665832, 1.569208, 0), Vector(-7.65858, 1.442281, 0), Vector(-7.646501, 1.329012, 0), Vector(-7.634351, 1.229095, 0), Vector(-7.617605, 1.143213, 0), Vector(-7.594757, 1.0498, 0), Vector(-7.560201, 0.952029, 0), Vector(-7.512791, 0.853393, 0), Vector(-7.461952, 0.774192, 0), Vector(-7.402072, 0.717485, 0), Vector(-7.337265, 0.679444, 0), Vector(-7.270047, 0.651494, 0), Vector(-7.198068, 0.63581, 0), Vector(-7.148863, 0.633419, 0), Vector(-7.123823, 0.632202, 0)], [4, 1, 1, 1, 1, 1, 1, 1, 1, 1, 1, 1, 1, 1, 1, 1, 4], [0, 1.613353868, 3.092528792, 4.438413522, 5.658843895, 6.755779493, 7.721003256, 8.558527904, 9.275869043, 10.491421475, 11.538327284, 12.426656321, 13.187490948, 13.890032692, 14.581719216, 15.278226227, 16], False, 3, [1, 1, 1, 1, 1, 1, 1, 1, 1, 1, 1, 1, 1, 1, 1, 1, 1, 1, 1], False),  # 23
    Part.BSplineCurve([Vector(-7.588919, 3.021067, 0), Vector(-7.596103, 2.994528, 0), Vector(-7.611543, 2.937489, 0), Vector(-7.629066, 2.844492, 0), Vector(-7.643518, 2.738949, 0), Vector(-7.655721, 2.620887, 0), Vector(-7.665651, 2.490241, 0), Vector(-7.671767, 2.34693, 0), Vector(-7.675994, 2.191053, 0), Vector(-7.676655, 2.082921, 0), Vector(-7.676999, 2.026667, 0)], [4, 1, 1, 1, 1, 1, 1, 1, 4], [0, 0.658986521, 1.416336438, 2.266694271, 3.212608458, 4.261595115, 5.407496572, 6.651304179, 8], False, 3, [1, 1, 1, 1, 1, 1, 1, 1, 1, 1, 1], False),  # 24
    Part.BSplineCurve([Vector(-7.123823, 3.424425, 0), Vector(-7.148881, 3.423277, 0), Vector(-7.198447, 3.421005, 0), Vector(-7.270492, 3.404172, 0), Vector(-7.338532, 3.376395, 0), Vector(-7.402895, 3.337617, 0), Vector(-7.46216, 3.283672, 0), Vector(-7.512362, 3.211343, 0), Vector(-7.555719, 3.122584, 0), Vector(-7.577416, 3.05624, 0), Vector(-7.588919, 3.021067, 0)], [4, 1, 1, 1, 1, 1, 1, 1, 4], [0, 0.899391665, 1.779078861, 2.640979247, 3.529945348, 4.464599804, 5.495588918, 6.672261578, 8], False, 3, [1, 1, 1, 1, 1, 1, 1, 1, 1, 1, 1], False),  # 25
], False)
sketch3.addConstraint([
    Sketcher.Constraint("Block", 1),
    Sketcher.Constraint("Block", 2),
    Sketcher.Constraint("Block", 3),
    Sketcher.Constraint("Block", 4),
    Sketcher.Constraint("Block", 5),
    Sketcher.Constraint("Block", 6),
    Sketcher.Constraint("Block", 7),
    Sketcher.Constraint("Block", 8),
    Sketcher.Constraint("Block", 9),
    Sketcher.Constraint("Block", 10),
    Sketcher.Constraint("Block", 11),
    Sketcher.Constraint("Block", 12),
    Sketcher.Constraint("Block", 13),
    Sketcher.Constraint("Block", 14),
    Sketcher.Constraint("Block", 15),
    Sketcher.Constraint("Block", 16),
    Sketcher.Constraint("Block", 17),
    Sketcher.Constraint("Block", 18),
    Sketcher.Constraint("Block", 19),
    Sketcher.Constraint("Block", 20),
    Sketcher.Constraint("Block", 21),
    Sketcher.Constraint("Block", 22),
    Sketcher.Constraint("Block", 23),
    Sketcher.Constraint("Block", 24),
    Sketcher.Constraint("Block", 25),
    Sketcher.Constraint("Coincident", 0, 2, 1, 2),
    Sketcher.Constraint("Coincident", 8, 1, 0, 1),
])
pocket1 = body.newObject("PartDesign::Pocket", "Pocket")
pocket1.Profile = sketch3
pocket1.setExpression("Length", "Params.pocket1_length")

doc.recompute()
